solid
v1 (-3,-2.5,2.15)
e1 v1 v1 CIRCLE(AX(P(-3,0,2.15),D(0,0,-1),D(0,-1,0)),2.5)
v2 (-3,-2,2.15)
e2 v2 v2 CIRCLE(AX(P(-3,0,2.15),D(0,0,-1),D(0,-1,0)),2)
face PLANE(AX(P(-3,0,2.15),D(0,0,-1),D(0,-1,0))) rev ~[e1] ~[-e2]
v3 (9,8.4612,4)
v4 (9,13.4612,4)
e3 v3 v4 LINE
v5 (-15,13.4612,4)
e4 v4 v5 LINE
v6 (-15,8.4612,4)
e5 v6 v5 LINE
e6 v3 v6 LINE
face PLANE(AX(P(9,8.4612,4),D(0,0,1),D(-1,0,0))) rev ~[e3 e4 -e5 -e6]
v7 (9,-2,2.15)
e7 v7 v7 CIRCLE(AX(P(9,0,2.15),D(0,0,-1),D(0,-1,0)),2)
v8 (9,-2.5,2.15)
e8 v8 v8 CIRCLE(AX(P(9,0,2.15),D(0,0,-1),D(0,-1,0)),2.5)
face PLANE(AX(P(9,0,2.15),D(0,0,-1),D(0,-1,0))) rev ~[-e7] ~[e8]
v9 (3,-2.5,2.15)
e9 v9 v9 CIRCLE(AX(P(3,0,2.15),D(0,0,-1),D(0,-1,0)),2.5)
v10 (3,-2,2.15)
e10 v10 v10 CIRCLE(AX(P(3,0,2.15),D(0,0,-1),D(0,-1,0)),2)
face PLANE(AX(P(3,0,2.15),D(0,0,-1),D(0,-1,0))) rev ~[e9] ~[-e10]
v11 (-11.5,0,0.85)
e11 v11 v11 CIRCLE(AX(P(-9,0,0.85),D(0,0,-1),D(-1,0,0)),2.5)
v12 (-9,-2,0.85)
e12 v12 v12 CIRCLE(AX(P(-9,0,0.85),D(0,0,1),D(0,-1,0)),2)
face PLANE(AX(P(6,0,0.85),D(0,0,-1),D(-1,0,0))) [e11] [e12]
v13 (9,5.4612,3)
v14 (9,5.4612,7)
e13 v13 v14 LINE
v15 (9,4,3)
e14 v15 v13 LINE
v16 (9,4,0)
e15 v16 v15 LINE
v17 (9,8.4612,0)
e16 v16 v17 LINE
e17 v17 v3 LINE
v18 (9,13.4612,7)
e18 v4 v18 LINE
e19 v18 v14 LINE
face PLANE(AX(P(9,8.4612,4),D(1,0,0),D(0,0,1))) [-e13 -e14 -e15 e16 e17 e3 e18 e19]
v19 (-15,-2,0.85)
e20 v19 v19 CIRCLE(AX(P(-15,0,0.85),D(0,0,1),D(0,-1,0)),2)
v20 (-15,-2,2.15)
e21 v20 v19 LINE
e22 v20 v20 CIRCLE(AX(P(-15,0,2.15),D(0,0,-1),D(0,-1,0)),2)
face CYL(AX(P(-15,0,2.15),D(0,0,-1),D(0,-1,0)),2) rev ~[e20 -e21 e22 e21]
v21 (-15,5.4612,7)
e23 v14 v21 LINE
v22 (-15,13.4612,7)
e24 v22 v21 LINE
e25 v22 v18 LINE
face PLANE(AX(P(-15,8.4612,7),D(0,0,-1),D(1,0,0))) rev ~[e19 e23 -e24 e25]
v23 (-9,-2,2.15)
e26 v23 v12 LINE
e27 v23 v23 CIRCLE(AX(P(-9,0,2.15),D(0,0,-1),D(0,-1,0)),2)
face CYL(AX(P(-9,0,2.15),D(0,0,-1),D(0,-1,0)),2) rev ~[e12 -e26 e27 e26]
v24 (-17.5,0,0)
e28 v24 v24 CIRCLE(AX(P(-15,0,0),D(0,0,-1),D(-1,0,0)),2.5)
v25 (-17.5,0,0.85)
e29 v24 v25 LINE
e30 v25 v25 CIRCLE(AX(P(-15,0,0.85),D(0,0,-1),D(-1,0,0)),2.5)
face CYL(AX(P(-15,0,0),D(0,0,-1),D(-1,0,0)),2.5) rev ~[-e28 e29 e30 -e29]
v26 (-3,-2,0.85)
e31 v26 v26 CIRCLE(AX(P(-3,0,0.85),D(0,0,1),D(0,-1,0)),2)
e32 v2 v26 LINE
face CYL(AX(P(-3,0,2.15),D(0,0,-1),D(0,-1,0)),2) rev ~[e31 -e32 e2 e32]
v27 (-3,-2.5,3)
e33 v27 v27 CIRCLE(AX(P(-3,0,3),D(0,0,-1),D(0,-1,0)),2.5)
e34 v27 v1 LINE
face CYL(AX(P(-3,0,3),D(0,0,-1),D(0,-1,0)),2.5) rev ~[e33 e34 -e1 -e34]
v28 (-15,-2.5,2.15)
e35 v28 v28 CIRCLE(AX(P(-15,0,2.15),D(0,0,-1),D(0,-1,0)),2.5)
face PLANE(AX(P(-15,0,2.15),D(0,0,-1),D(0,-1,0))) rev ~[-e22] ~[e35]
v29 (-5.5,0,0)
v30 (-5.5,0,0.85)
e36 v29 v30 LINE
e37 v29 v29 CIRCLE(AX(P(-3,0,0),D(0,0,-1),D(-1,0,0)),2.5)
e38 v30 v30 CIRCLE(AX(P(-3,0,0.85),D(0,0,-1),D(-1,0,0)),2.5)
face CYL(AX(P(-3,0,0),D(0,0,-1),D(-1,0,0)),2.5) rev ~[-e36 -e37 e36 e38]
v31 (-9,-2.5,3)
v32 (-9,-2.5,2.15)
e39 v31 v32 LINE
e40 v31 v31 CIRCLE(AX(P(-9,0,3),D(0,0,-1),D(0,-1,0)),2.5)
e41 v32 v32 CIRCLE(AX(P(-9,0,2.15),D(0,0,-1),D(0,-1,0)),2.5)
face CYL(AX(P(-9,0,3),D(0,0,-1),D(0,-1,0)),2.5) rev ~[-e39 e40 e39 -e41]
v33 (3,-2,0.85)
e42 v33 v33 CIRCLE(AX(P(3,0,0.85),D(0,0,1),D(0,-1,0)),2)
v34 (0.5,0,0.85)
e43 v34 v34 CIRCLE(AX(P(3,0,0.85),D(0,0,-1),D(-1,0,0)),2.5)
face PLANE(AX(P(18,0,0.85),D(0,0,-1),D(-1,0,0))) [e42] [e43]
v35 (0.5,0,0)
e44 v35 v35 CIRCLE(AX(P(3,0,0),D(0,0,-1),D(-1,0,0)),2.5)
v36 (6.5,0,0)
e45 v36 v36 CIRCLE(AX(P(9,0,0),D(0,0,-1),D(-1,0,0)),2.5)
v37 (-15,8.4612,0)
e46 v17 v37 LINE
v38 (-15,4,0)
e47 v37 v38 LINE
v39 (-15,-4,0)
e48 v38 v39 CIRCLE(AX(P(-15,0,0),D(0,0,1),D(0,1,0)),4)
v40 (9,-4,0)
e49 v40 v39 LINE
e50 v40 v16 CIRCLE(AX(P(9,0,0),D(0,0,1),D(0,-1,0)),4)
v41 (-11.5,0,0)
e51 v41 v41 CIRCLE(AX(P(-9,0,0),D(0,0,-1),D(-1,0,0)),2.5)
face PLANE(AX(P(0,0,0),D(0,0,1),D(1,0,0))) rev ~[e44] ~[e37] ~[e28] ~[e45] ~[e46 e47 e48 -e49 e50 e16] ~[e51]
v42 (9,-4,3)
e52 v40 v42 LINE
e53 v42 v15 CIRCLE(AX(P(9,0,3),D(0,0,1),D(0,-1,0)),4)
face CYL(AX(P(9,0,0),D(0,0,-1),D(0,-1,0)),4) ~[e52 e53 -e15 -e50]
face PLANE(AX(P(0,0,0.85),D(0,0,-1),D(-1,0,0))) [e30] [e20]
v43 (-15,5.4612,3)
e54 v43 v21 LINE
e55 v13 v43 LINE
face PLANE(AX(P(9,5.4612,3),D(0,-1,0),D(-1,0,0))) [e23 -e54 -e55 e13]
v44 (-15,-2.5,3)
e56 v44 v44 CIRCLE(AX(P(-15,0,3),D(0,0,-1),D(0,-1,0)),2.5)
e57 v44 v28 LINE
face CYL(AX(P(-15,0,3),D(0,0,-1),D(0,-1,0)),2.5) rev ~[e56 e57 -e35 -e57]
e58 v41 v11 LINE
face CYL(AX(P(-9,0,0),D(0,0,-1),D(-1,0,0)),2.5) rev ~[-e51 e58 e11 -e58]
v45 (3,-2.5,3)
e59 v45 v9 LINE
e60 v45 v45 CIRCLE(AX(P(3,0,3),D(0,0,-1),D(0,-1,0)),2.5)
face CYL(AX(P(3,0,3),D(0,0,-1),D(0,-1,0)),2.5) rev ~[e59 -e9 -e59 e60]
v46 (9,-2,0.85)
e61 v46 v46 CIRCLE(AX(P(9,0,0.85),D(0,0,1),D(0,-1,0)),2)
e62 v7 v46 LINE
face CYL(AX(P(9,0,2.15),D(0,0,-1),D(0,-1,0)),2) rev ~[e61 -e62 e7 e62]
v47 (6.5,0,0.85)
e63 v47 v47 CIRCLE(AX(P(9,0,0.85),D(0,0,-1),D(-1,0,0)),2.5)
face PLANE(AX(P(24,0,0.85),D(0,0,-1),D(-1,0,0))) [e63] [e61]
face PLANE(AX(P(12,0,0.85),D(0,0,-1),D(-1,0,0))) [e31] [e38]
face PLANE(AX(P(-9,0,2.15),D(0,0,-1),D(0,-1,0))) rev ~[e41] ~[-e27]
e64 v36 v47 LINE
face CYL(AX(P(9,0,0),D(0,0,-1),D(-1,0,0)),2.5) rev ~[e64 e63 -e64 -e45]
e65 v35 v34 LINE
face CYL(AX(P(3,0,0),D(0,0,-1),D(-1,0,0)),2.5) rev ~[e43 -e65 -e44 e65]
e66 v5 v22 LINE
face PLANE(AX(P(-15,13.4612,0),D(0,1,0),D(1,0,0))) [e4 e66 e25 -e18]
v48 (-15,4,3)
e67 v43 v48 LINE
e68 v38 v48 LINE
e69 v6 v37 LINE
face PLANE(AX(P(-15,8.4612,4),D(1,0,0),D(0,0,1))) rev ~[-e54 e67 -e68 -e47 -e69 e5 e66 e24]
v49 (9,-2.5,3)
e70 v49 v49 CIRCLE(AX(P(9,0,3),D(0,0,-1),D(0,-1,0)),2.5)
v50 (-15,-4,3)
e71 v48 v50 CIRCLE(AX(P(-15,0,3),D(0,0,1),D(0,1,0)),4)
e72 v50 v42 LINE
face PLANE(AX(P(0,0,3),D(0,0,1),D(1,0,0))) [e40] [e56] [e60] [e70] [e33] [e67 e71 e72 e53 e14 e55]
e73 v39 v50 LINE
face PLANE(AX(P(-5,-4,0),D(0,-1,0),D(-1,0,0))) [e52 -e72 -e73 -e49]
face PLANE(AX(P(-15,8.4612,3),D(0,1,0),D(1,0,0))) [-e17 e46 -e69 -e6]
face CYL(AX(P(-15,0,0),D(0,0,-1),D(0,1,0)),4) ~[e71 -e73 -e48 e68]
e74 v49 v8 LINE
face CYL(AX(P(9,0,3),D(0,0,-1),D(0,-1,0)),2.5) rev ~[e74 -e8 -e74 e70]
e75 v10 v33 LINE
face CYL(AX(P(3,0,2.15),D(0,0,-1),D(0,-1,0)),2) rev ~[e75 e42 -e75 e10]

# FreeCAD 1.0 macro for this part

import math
import FreeCAD as App
import Part
import Sketcher

V = App.Vector

doc = App.newDocument("Part")
body = doc.addObject("PartDesign::Body", "Body")

# Sketch on XY plane
sketch1 = body.newObject("Sketcher::SketchObject", "Sketch")
sketch1.AttachmentSupport = (doc.getObject("XY_Plane"), [""])
sketch1.MapMode = "FlatFace"
sketch1.addGeometry(Part.LineSegment(V(-15, 8.4612, 0), V(-15, 4, 0)), False)
sketch1.addGeometry(Part.ArcOfCircle(Part.Circle(V(-15, 0, 0), V(0, 0, 1), 4), math.radians(90), math.radians(270)), False)
sketch1.addGeometry(Part.LineSegment(V(-15, -4, 0), V(9, -4, 0)), False)
sketch1.addGeometry(Part.ArcOfCircle(Part.Circle(V(9, 0, 0), V(0, 0, 1), 4), math.radians(-90), math.radians(90)), False)
sketch1.addGeometry(Part.LineSegment(V(9, 4, 0), V(9, 8.4612, 0)), False)
sketch1.addGeometry(Part.LineSegment(V(9, 8.4612, 0), V(-15, 8.4612, 0)), False)
sketch1.addConstraint(Sketcher.Constraint("Coincident", 0, 2, 1, 1))
sketch1.addConstraint(Sketcher.Constraint("Tangent", 1, 2, 2, 1))
sketch1.addConstraint(Sketcher.Constraint("Tangent", 2, 2, 3, 1))
sketch1.addConstraint(Sketcher.Constraint("Coincident", 3, 2, 4, 1))
sketch1.addConstraint(Sketcher.Constraint("Coincident", 4, 2, 5, 1))
sketch1.addConstraint(Sketcher.Constraint("Coincident", 5, 2, 0, 1))
sketch1.addConstraint(Sketcher.Constraint("Vertical", 0))
sketch1.addConstraint(Sketcher.Constraint("Horizontal", 2))
sketch1.addConstraint(Sketcher.Constraint("Vertical", 4))
sketch1.addConstraint(Sketcher.Constraint("Horizontal", 5))
sketch1.addConstraint(Sketcher.Constraint("Equal", 1, 3))
sketch1.addConstraint(Sketcher.Constraint("Symmetric", 0, 2, 1, 2, -1))
sketch1.addConstraint(Sketcher.Constraint("Vertical", 2, 2, 3, 2))
sketch1.addConstraint(Sketcher.Constraint("Radius", 1, 4.0))
sketch1.addConstraint(Sketcher.Constraint("DistanceX", 2, 1, 2, 2, 24.0))
sketch1.addConstraint(Sketcher.Constraint("DistanceX", 1, 3, -1, 1, 15.0))
sketch1.addConstraint(Sketcher.Constraint("DistanceY", 0, 2, 0, 1, 4.4612))
pad1 = body.newObject("PartDesign::Pad", "Pad")
pad1.Profile = sketch1
pad1.Length = 3

# Sketch on XY plane
sketch2 = body.newObject("Sketcher::SketchObject", "Sketch001")
sketch2.AttachmentSupport = (doc.getObject("XY_Plane"), [""])
sketch2.MapMode = "FlatFace"
sketch2.AttachmentOffset = App.Placement(V(0, 0, 3), App.Rotation())
sketch2.addGeometry(Part.Circle(V(-15, 0, 0), V(0, 0, 1), 2), False)
sketch2.addConstraint(Sketcher.Constraint("PointOnObject", 0, 3, -1))
sketch2.addConstraint(Sketcher.Constraint("Diameter", 0, 4.0))
sketch2.addConstraint(Sketcher.Constraint("DistanceX", 0, 3, -1, 1, 15.0))
doc.recompute()
hole = body.newObject("PartDesign::Hole", "Hole")
hole.Profile = sketch2
hole.ThreadType = "None"
hole.Diameter = 4
hole.DepthType = "Dimension"
hole.Depth = 3
hole.DrillPoint = "Angled"
hole.DrillPointAngle = 118
hole.HoleCutType = "Counterbore"
hole.HoleCutDiameter = 5
hole.HoleCutDepth = 0.85

# Sketch on XY plane
sketch3 = body.newObject("Sketcher::SketchObject", "Sketch002")
sketch3.AttachmentSupport = (doc.getObject("XY_Plane"), [""])
sketch3.MapMode = "FlatFace"
sketch3.addGeometry(Part.Circle(V(-15, 0, 0), V(0, 0, 1), 2.5), False)
sketch3.addGeometry(Part.Circle(V(-15, 0, 0), V(0, 0, 1), 2), False)
sketch3.addConstraint(Sketcher.Constraint("Coincident", 1, 3, 0, 3))
sketch3.addConstraint(Sketcher.Constraint("PointOnObject", 0, 3, -1))
sketch3.addConstraint(Sketcher.Constraint("Diameter", 0, 5.0))
sketch3.addConstraint(Sketcher.Constraint("Diameter", 1, 4.0))
sketch3.addConstraint(Sketcher.Constraint("DistanceX", 0, 3, -1, 1, 15.0))
pocket1 = body.newObject("PartDesign::Pocket", "Pocket")
pocket1.Profile = sketch3
pocket1.Length = 0.85
pocket1.Reversed = True
doc.recompute()

linearpattern = body.newObject("PartDesign::LinearPattern", "LinearPattern")
linearpattern.Originals = [pocket1, hole]
linearpattern.Direction = (doc.getObject("X_Axis"), [""])
linearpattern.Mode = "offset"
linearpattern.Offset = 6
linearpattern.Occurrences = 5
body.Tip = linearpattern

# Sketch on XY plane
sketch4 = body.newObject("Sketcher::SketchObject", "Sketch003")
sketch4.AttachmentSupport = (doc.getObject("XY_Plane"), [""])
sketch4.MapMode = "FlatFace"
sketch4.AttachmentOffset = App.Placement(V(0, 0, 3), App.Rotation())
sketch4.addGeometry(Part.LineSegment(V(-15, 5.4612, 0), V(9, 5.4612, 0)), False)
sketch4.addGeometry(Part.LineSegment(V(9, 5.4612, 0), V(9, 8.4612, 0)), False)
sketch4.addGeometry(Part.LineSegment(V(9, 8.4612, 0), V(-15, 8.4612, 0)), False)
sketch4.addGeometry(Part.LineSegment(V(-15, 8.4612, 0), V(-15, 5.4612, 0)), False)
sketch4.addConstraint(Sketcher.Constraint("Coincident", 0, 2, 1, 1))
sketch4.addConstraint(Sketcher.Constraint("Coincident", 1, 2, 2, 1))
sketch4.addConstraint(Sketcher.Constraint("Coincident", 2, 2, 3, 1))
sketch4.addConstraint(Sketcher.Constraint("Coincident", 3, 2, 0, 1))
sketch4.addConstraint(Sketcher.Constraint("Horizontal", 0))
sketch4.addConstraint(Sketcher.Constraint("Vertical", 1))
sketch4.addConstraint(Sketcher.Constraint("Horizontal", 2))
sketch4.addConstraint(Sketcher.Constraint("Vertical", 3))
sketch4.addConstraint(Sketcher.Constraint("DistanceY", 1, 1, 1, 2, 3.0))
sketch4.addConstraint(Sketcher.Constraint("DistanceX", 0, 1, 0, 2, 24.0))
sketch4.addConstraint(Sketcher.Constraint("DistanceX", -1, 1, 0, 2, 9.0))
sketch4.addConstraint(Sketcher.Constraint("DistanceY", -1, 1, 0, 2, 5.4612))
pad2 = body.newObject("PartDesign::Pad", "Pad001")
pad2.Profile = sketch4
pad2.Length = 4

# Sketch on XZ plane
sketch5 = body.newObject("Sketcher::SketchObject", "Sketch004")
sketch5.AttachmentSupport = (doc.getObject("XZ_Plane"), [""])
sketch5.MapMode = "FlatFace"
sketch5.AttachmentOffset = App.Placement(V(0, 0, -8.4612), App.Rotation())
sketch5.addGeometry(Part.LineSegment(V(9, 7, 0), V(9, 4, 0)), False)
sketch5.addGeometry(Part.LineSegment(V(9, 4, 0), V(-15, 4, 0)), False)
sketch5.addGeometry(Part.LineSegment(V(-15, 4, 0), V(-15, 7, 0)), False)
sketch5.addGeometry(Part.LineSegment(V(-15, 7, 0), V(9, 7, 0)), False)
sketch5.addConstraint(Sketcher.Constraint("Coincident", 0, 2, 1, 1))
sketch5.addConstraint(Sketcher.Constraint("Coincident", 1, 2, 2, 1))
sketch5.addConstraint(Sketcher.Constraint("Coincident", 2, 2, 3, 1))
sketch5.addConstraint(Sketcher.Constraint("Coincident", 3, 2, 0, 1))
sketch5.addConstraint(Sketcher.Constraint("Vertical", 0))
sketch5.addConstraint(Sketcher.Constraint("Horizontal", 1))
sketch5.addConstraint(Sketcher.Constraint("Vertical", 2))
sketch5.addConstraint(Sketcher.Constraint("Horizontal", 3))
sketch5.addConstraint(Sketcher.Constraint("DistanceY", 0, 2, 0, 1, 3.0))
sketch5.addConstraint(Sketcher.Constraint("DistanceX", 1, 2, 1, 1, 24.0))
sketch5.addConstraint(Sketcher.Constraint("DistanceX", -1, 1, 0, 2, 9.0))
sketch5.addConstraint(Sketcher.Constraint("DistanceY", -1, 1, 0, 2, 4.0))
pad3 = body.newObject("PartDesign::Pad", "Pad002")
pad3.Profile = sketch5
pad3.Length = 5
pad3.Reversed = True

doc.recompute()
